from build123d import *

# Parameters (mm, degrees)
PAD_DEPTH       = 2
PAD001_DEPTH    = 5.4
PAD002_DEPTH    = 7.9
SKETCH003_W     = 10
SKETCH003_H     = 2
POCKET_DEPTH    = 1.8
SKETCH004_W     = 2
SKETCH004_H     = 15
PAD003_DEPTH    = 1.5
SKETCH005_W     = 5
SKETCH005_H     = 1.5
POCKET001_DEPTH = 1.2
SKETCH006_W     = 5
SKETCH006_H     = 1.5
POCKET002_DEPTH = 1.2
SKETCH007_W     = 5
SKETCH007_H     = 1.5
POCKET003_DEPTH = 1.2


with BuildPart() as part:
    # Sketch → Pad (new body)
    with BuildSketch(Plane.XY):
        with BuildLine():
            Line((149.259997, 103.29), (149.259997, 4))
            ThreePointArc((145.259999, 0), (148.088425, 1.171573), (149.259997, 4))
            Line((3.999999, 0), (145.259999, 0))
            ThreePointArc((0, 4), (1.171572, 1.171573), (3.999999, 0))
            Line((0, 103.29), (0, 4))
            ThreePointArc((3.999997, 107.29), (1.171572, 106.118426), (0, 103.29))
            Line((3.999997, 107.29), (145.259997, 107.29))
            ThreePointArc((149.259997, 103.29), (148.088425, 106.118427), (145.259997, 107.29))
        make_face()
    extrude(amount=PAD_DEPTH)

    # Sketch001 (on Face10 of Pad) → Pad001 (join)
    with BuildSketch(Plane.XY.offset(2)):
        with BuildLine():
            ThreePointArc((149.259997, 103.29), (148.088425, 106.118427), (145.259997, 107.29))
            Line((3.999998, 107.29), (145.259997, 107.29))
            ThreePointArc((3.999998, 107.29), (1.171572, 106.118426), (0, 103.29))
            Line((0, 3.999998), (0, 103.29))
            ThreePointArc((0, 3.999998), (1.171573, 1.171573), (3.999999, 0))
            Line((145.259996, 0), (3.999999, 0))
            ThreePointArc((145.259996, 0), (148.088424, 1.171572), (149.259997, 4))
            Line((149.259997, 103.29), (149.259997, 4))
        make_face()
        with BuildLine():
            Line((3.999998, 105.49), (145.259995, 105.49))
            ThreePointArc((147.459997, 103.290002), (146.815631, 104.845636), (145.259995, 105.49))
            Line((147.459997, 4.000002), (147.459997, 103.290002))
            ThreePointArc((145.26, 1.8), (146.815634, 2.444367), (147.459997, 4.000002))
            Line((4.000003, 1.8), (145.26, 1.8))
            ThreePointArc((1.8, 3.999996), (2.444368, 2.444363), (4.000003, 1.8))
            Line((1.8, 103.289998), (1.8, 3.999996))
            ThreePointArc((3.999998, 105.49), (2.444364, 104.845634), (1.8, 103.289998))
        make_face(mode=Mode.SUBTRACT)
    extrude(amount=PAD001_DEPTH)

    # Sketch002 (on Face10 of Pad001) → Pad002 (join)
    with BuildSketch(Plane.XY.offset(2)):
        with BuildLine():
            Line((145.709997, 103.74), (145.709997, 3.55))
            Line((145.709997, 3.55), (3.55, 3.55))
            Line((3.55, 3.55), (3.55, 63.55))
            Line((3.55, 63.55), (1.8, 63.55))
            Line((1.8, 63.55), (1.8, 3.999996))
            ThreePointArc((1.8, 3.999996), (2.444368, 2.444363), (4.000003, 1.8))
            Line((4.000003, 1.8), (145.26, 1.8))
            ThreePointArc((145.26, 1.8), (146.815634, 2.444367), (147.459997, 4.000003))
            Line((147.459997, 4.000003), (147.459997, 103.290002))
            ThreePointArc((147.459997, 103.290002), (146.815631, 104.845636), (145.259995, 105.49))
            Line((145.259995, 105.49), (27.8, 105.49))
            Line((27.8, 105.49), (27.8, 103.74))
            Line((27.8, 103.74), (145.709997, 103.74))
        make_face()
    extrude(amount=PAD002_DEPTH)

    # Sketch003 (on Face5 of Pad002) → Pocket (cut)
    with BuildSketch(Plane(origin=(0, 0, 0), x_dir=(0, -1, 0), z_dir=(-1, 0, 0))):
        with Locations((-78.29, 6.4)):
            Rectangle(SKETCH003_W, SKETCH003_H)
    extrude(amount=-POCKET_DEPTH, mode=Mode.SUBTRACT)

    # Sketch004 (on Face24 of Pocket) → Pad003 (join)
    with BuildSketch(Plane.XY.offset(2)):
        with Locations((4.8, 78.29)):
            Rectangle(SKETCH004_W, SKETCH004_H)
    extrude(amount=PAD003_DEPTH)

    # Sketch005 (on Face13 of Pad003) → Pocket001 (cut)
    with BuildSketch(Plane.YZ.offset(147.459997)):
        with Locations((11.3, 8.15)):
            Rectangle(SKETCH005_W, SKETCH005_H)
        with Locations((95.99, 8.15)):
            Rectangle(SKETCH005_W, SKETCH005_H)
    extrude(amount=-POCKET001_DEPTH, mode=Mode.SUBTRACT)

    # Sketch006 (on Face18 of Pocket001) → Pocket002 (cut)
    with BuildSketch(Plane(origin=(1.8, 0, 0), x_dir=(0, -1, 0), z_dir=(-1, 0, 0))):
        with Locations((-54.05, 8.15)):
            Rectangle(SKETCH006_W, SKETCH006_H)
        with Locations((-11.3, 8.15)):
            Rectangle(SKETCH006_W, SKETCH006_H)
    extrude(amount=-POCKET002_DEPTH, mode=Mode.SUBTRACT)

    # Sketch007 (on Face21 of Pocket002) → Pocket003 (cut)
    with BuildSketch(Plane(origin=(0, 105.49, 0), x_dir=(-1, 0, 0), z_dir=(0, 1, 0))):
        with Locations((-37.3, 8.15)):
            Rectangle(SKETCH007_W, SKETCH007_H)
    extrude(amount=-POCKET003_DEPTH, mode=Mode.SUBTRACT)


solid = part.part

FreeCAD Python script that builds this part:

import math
import FreeCAD as App
import Part
import Sketcher


def add_polygon(sketch, points):
    """Adds a closed chain of lines whose ends are joined by coincident constraints."""
    first, n = sketch.GeometryCount, len(points)
    for a, b in zip(points, points[1:] + points[:1]):
        sketch.addGeometry(Part.LineSegment(App.Vector(*a, 0), App.Vector(*b, 0)), False)
    for i in range(n):
        sketch.addConstraint(Sketcher.Constraint("Coincident", first + i, 2, first + (i + 1) % n, 1))

doc = App.newDocument("Part")
params = doc.addObject("Spreadsheet::Sheet", "Params")
for row, (alias, value) in enumerate([
    ("sketch1_radius", "3.999999 mm"),
    ("sketch1_width", "141.26 mm"),
    ("sketch1_height", "99.29 mm"),
    ("pad1_length", "2 mm"),
    ("sketch2_radius", "3.999999 mm"),
    ("sketch2_radius2", "2.2 mm"),
    ("sketch2_width", "141.259999 mm"),
    ("sketch2_height", "99.290002 mm"),
    ("pad2_length", "5.4 mm"),
    ("sketch3_radius", "2.200001 mm"),
    ("sketch3_height", "60 mm"),
    ("sketch3_width", "1.75 mm"),
    ("sketch3_height2", "100.19 mm"),
    ("sketch3_height3", "99.289999 mm"),
    ("pad3_length", "7.9 mm"),
    ("sketch4_width", "10 mm"),
    ("sketch4_height", "2 mm"),
    ("pocket1_length", "1.8 mm"),
    ("sketch5_width", "2 mm"),
    ("sketch5_height", "15 mm"),
    ("pad4_length", "1.5 mm"),
    ("sketch6_width", "5 mm"),
    ("sketch6_height", "1.5 mm"),
    ("pocket2_length", "1.2 mm"),
    ("sketch7_width", "5 mm"),
    ("sketch7_height", "1.5 mm"),
    ("pocket3_length", "1.2 mm"),
    ("sketch8_width", "5 mm"),
    ("sketch8_height", "1.5 mm"),
    ("pocket4_length", "1.2 mm"),
], start=1):
    params.set(f"A{row}", alias)
    params.set(f"B{row}", "=" + value)
    params.setAlias(f"B{row}", alias)

body = doc.addObject("PartDesign::Body", "Body")

# Sketch on XY plane
sketch1 = body.newObject("Sketcher::SketchObject", "Sketch")
sketch1.AttachmentSupport = (doc.getObject("XY_Plane"), [""])
sketch1.MapMode = "FlatFace"
sketch1.addGeometry(Part.LineSegment(App.Vector(149.3, 4, 0), App.Vector(149.3, 103.3, 0)), False)
sketch1.addGeometry(Part.ArcOfCircle(Part.Circle(App.Vector(145.3, 103.3, 0), App.Vector(0, 0, 1), 4), math.radians(0), math.radians(90)), False)
sketch1.addGeometry(Part.LineSegment(App.Vector(145.3, 107.3, 0), App.Vector(4, 107.3, 0)), False)
sketch1.addGeometry(Part.ArcOfCircle(Part.Circle(App.Vector(4, 103.3, 0), App.Vector(0, 0, 1), 4), math.radians(90), math.radians(180)), False)
sketch1.addGeometry(Part.LineSegment(App.Vector(0, 103.3, 0), App.Vector(0, 4, 0)), False)
sketch1.addGeometry(Part.ArcOfCircle(Part.Circle(App.Vector(4, 4, 0), App.Vector(0, 0, 1), 4), math.radians(180), math.radians(270)), False)
sketch1.addGeometry(Part.LineSegment(App.Vector(4, 0, 0), App.Vector(145.3, 0, 0)), False)
sketch1.addGeometry(Part.ArcOfCircle(Part.Circle(App.Vector(145.3, 4, 0), App.Vector(0, 0, 1), 4), math.radians(-90), math.radians(0)), False)
sketch1.addConstraint(Sketcher.Constraint("Tangent", 0, 2, 1, 1))
sketch1.addConstraint(Sketcher.Constraint("Tangent", 1, 2, 2, 1))
sketch1.addConstraint(Sketcher.Constraint("Tangent", 2, 2, 3, 1))
sketch1.addConstraint(Sketcher.Constraint("Tangent", 3, 2, 4, 1))
sketch1.addConstraint(Sketcher.Constraint("Tangent", 4, 2, 5, 1))
sketch1.addConstraint(Sketcher.Constraint("Tangent", 5, 2, 6, 1))
sketch1.addConstraint(Sketcher.Constraint("Tangent", 6, 2, 7, 1))
sketch1.addConstraint(Sketcher.Constraint("Tangent", 7, 2, 0, 1))
sketch1.addConstraint(Sketcher.Constraint("Vertical", 0))
sketch1.addConstraint(Sketcher.Constraint("Horizontal", 2))
sketch1.addConstraint(Sketcher.Constraint("Vertical", 4))
sketch1.addConstraint(Sketcher.Constraint("Horizontal", 6))
sketch1.addConstraint(Sketcher.Constraint("Equal", 1, 3))
sketch1.addConstraint(Sketcher.Constraint("Equal", 3, 5))
sketch1.addConstraint(Sketcher.Constraint("Equal", 5, 7))
sketch1.addConstraint(Sketcher.Constraint("PointOnObject", 3, 2, -2))
sketch1.addConstraint(Sketcher.Constraint("PointOnObject", 5, 2, -1))
sketch1.addConstraint(Sketcher.Constraint("Radius", 1, 3.999999))
sketch1.addConstraint(Sketcher.Constraint("DistanceX", 2, 2, 2, 1, 141.26))
sketch1.addConstraint(Sketcher.Constraint("DistanceY", 0, 1, 0, 2, 99.29))
sketch1.setExpression("Constraints[17]", "Params.sketch1_radius")
sketch1.setExpression("Constraints[18]", "Params.sketch1_width")
sketch1.setExpression("Constraints[19]", "Params.sketch1_height")
pad1 = body.newObject("PartDesign::Pad", "Pad")
pad1.Profile = sketch1
pad1.setExpression("Length", "Params.pad1_length")

# Sketch on XY plane
sketch2 = body.newObject("Sketcher::SketchObject", "Sketch001")
sketch2.AttachmentSupport = (doc.getObject("XY_Plane"), [""])
sketch2.MapMode = "FlatFace"
sketch2.AttachmentOffset = App.Placement(App.Vector(0, 0, 2), App.Rotation())
sketch2.addGeometry(Part.ArcOfCircle(Part.Circle(App.Vector(145.3, 103.3, 0), App.Vector(0, 0, 1), 4), math.radians(0), math.radians(90)), False)
sketch2.addGeometry(Part.LineSegment(App.Vector(145.3, 107.3, 0), App.Vector(4, 107.3, 0)), False)
sketch2.addGeometry(Part.ArcOfCircle(Part.Circle(App.Vector(4, 103.3, 0), App.Vector(0, 0, 1), 4), math.radians(90), math.radians(180)), False)
sketch2.addGeometry(Part.LineSegment(App.Vector(0, 103.3, 0), App.Vector(0, 4, 0)), False)
sketch2.addGeometry(Part.ArcOfCircle(Part.Circle(App.Vector(4, 4, 0), App.Vector(0, 0, 1), 4), math.radians(-180), math.radians(-90)), False)
sketch2.addGeometry(Part.LineSegment(App.Vector(4, 0, 0), App.Vector(145.3, 0, 0)), False)
sketch2.addGeometry(Part.ArcOfCircle(Part.Circle(App.Vector(145.3, 4, 0), App.Vector(0, 0, 1), 4), math.radians(-90), math.radians(0)), False)
sketch2.addGeometry(Part.LineSegment(App.Vector(149.3, 4, 0), App.Vector(149.3, 103.3, 0)), False)
sketch2.addGeometry(Part.ArcOfCircle(Part.Circle(App.Vector(4, 103.3, 0), App.Vector(0, 0, 1), 2.2), math.radians(90), math.radians(180)), False)
sketch2.addGeometry(Part.LineSegment(App.Vector(4, 105.5, 0), App.Vector(145.3, 105.5, 0)), False)
sketch2.addGeometry(Part.ArcOfCircle(Part.Circle(App.Vector(145.3, 103.3, 0), App.Vector(0, 0, 1), 2.2), math.radians(0), math.radians(90)), False)
sketch2.addGeometry(Part.LineSegment(App.Vector(147.5, 103.3, 0), App.Vector(147.5, 4, 0)), False)
sketch2.addGeometry(Part.ArcOfCircle(Part.Circle(App.Vector(145.3, 4, 0), App.Vector(0, 0, 1), 2.2), math.radians(-90), math.radians(0)), False)
sketch2.addGeometry(Part.LineSegment(App.Vector(145.3, 1.8, 0), App.Vector(4, 1.8, 0)), False)
sketch2.addGeometry(Part.ArcOfCircle(Part.Circle(App.Vector(4, 4, 0), App.Vector(0, 0, 1), 2.2), math.radians(-180), math.radians(-90)), False)
sketch2.addGeometry(Part.LineSegment(App.Vector(1.8, 4, 0), App.Vector(1.8, 103.3, 0)), False)
sketch2.addConstraint(Sketcher.Constraint("Tangent", 0, 2, 1, 1))
sketch2.addConstraint(Sketcher.Constraint("Tangent", 1, 2, 2, 1))
sketch2.addConstraint(Sketcher.Constraint("Tangent", 2, 2, 3, 1))
sketch2.addConstraint(Sketcher.Constraint("Tangent", 3, 2, 4, 1))
sketch2.addConstraint(Sketcher.Constraint("Tangent", 4, 2, 5, 1))
sketch2.addConstraint(Sketcher.Constraint("Tangent", 5, 2, 6, 1))
sketch2.addConstraint(Sketcher.Constraint("Tangent", 6, 2, 7, 1))
sketch2.addConstraint(Sketcher.Constraint("Tangent", 7, 2, 0, 1))
sketch2.addConstraint(Sketcher.Constraint("Tangent", 8, 1, 9, 1))
sketch2.addConstraint(Sketcher.Constraint("Tangent", 9, 2, 10, 2))
sketch2.addConstraint(Sketcher.Constraint("Tangent", 10, 1, 11, 1))
sketch2.addConstraint(Sketcher.Constraint("Tangent", 11, 2, 12, 2))
sketch2.addConstraint(Sketcher.Constraint("Tangent", 12, 1, 13, 1))
sketch2.addConstraint(Sketcher.Constraint("Tangent", 13, 2, 14, 2))
sketch2.addConstraint(Sketcher.Constraint("Coincident", 14, 1, 15, 1))
sketch2.addConstraint(Sketcher.Constraint("Tangent", 15, 2, 8, 2))
sketch2.addConstraint(Sketcher.Constraint("Horizontal", 1))
sketch2.addConstraint(Sketcher.Constraint("Vertical", 3))
sketch2.addConstraint(Sketcher.Constraint("Horizontal", 5))
sketch2.addConstraint(Sketcher.Constraint("Vertical", 7))
sketch2.addConstraint(Sketcher.Constraint("Horizontal", 9))
sketch2.addConstraint(Sketcher.Constraint("Vertical", 11))
sketch2.addConstraint(Sketcher.Constraint("Horizontal", 13))
sketch2.addConstraint(Sketcher.Constraint("Vertical", 15))
sketch2.addConstraint(Sketcher.Constraint("Coincident", 8, 3, 2, 3))
sketch2.addConstraint(Sketcher.Constraint("Coincident", 10, 3, 0, 3))
sketch2.addConstraint(Sketcher.Constraint("Coincident", 12, 3, 6, 3))
sketch2.addConstraint(Sketcher.Constraint("Equal", 0, 2))
sketch2.addConstraint(Sketcher.Constraint("Equal", 2, 4))
sketch2.addConstraint(Sketcher.Constraint("Equal", 4, 6))
sketch2.addConstraint(Sketcher.Constraint("Equal", 12, 14))
sketch2.addConstraint(Sketcher.Constraint("PointOnObject", 2, 2, -2))
sketch2.addConstraint(Sketcher.Constraint("PointOnObject", 4, 2, -1))
sketch2.addConstraint(Sketcher.Constraint("Horizontal", 3, 2, 14, 1))
sketch2.addConstraint(Sketcher.Constraint("Radius", 0, 3.999999))
sketch2.addConstraint(Sketcher.Constraint("Radius", 8, 2.2))
sketch2.addConstraint(Sketcher.Constraint("DistanceX", 1, 2, 1, 1, 141.259999))
sketch2.addConstraint(Sketcher.Constraint("DistanceY", 3, 2, 3, 1, 99.290002))
sketch2.setExpression("Constraints[34]", "Params.sketch2_radius")
sketch2.setExpression("Constraints[35]", "Params.sketch2_radius2")
sketch2.setExpression("Constraints[36]", "Params.sketch2_width")
sketch2.setExpression("Constraints[37]", "Params.sketch2_height")
pad2 = body.newObject("PartDesign::Pad", "Pad001")
pad2.Profile = sketch2
pad2.setExpression("Length", "Params.pad2_length")

# Sketch on XY plane
sketch3 = body.newObject("Sketcher::SketchObject", "Sketch002")
sketch3.AttachmentSupport = (doc.getObject("XY_Plane"), [""])
sketch3.MapMode = "FlatFace"
sketch3.AttachmentOffset = App.Placement(App.Vector(0, 0, 2), App.Rotation())
sketch3.addGeometry(Part.LineSegment(App.Vector(145.7, 103.7, 0), App.Vector(145.7, 3.5, 0)), False)
sketch3.addGeometry(Part.LineSegment(App.Vector(145.7, 3.5, 0), App.Vector(3.5, 3.5, 0)), False)
sketch3.addGeometry(Part.LineSegment(App.Vector(3.5, 3.5, 0), App.Vector(3.5, 63.5, 0)), False)
sketch3.addGeometry(Part.LineSegment(App.Vector(3.5, 63.5, 0), App.Vector(1.8, 63.5, 0)), False)
sketch3.addGeometry(Part.LineSegment(App.Vector(1.8, 63.5, 0), App.Vector(1.8, 4, 0)), False)
sketch3.addGeometry(Part.ArcOfCircle(Part.Circle(App.Vector(4, 4, 0), App.Vector(0, 0, 1), 2.2), math.radians(-180), math.radians(-90)), False)
sketch3.addGeometry(Part.LineSegment(App.Vector(4, 1.8, 0), App.Vector(145.3, 1.8, 0)), False)
sketch3.addGeometry(Part.ArcOfCircle(Part.Circle(App.Vector(145.3, 4, 0), App.Vector(0, 0, 1), 2.2), math.radians(-90), math.radians(0)), False)
sketch3.addGeometry(Part.LineSegment(App.Vector(147.5, 4, 0), App.Vector(147.5, 103.3, 0)), False)
sketch3.addGeometry(Part.ArcOfCircle(Part.Circle(App.Vector(145.3, 103.3, 0), App.Vector(0, 0, 1), 2.2), math.radians(0), math.radians(90)), False)
sketch3.addGeometry(Part.LineSegment(App.Vector(145.3, 105.5, 0), App.Vector(27.8, 105.5, 0)), False)
sketch3.addGeometry(Part.LineSegment(App.Vector(27.8, 105.5, 0), App.Vector(27.8, 103.7, 0)), False)
sketch3.addGeometry(Part.LineSegment(App.Vector(27.8, 103.7, 0), App.Vector(145.7, 103.7, 0)), False)
sketch3.addConstraint(Sketcher.Constraint("Coincident", 0, 2, 1, 1))
sketch3.addConstraint(Sketcher.Constraint("Coincident", 1, 2, 2, 1))
sketch3.addConstraint(Sketcher.Constraint("Coincident", 2, 2, 3, 1))
sketch3.addConstraint(Sketcher.Constraint("Coincident", 3, 2, 4, 1))
sketch3.addConstraint(Sketcher.Constraint("Coincident", 4, 2, 5, 1))
sketch3.addConstraint(Sketcher.Constraint("Tangent", 5, 2, 6, 1))
sketch3.addConstraint(Sketcher.Constraint("Tangent", 6, 2, 7, 1))
sketch3.addConstraint(Sketcher.Constraint("Tangent", 7, 2, 8, 1))
sketch3.addConstraint(Sketcher.Constraint("Tangent", 8, 2, 9, 1))
sketch3.addConstraint(Sketcher.Constraint("Tangent", 9, 2, 10, 1))
sketch3.addConstraint(Sketcher.Constraint("Coincident", 10, 2, 11, 1))
sketch3.addConstraint(Sketcher.Constraint("Coincident", 11, 2, 12, 1))
sketch3.addConstraint(Sketcher.Constraint("Coincident", 12, 2, 0, 1))
sketch3.addConstraint(Sketcher.Constraint("Vertical", 0))
sketch3.addConstraint(Sketcher.Constraint("Horizontal", 1))
sketch3.addConstraint(Sketcher.Constraint("Vertical", 2))
sketch3.addConstraint(Sketcher.Constraint("Horizontal", 3))
sketch3.addConstraint(Sketcher.Constraint("Vertical", 4))
sketch3.addConstraint(Sketcher.Constraint("Horizontal", 6))
sketch3.addConstraint(Sketcher.Constraint("Vertical", 8))
sketch3.addConstraint(Sketcher.Constraint("Horizontal", 10))
sketch3.addConstraint(Sketcher.Constraint("Vertical", 11))
sketch3.addConstraint(Sketcher.Constraint("Horizontal", 12))
sketch3.addConstraint(Sketcher.Constraint("Equal", 5, 7))
sketch3.addConstraint(Sketcher.Constraint("Equal", 7, 9))
sketch3.addConstraint(Sketcher.Constraint("Equal", 3, 11))
sketch3.addConstraint(Sketcher.Constraint("Radius", 5, 2.200001))
sketch3.addConstraint(Sketcher.Constraint("DistanceY", 2, 1, 2, 2, 60.0))
sketch3.addConstraint(Sketcher.Constraint("DistanceX", -1, 1, 5, 3, 4.000001))
sketch3.addConstraint(Sketcher.Constraint("DistanceY", -1, 1, 5, 3, 4.000001))
sketch3.addConstraint(Sketcher.Constraint("DistanceX", 3, 2, 10, 2, 26.0))
sketch3.addConstraint(Sketcher.Constraint("DistanceX", 3, 2, 3, 1, 1.75))
sketch3.addConstraint(Sketcher.Constraint("DistanceY", 0, 2, 0, 1, 100.19))
sketch3.addConstraint(Sketcher.Constraint("DistanceY", 8, 1, 8, 2, 99.289999))
sketch3.addConstraint(Sketcher.Constraint("DistanceX", -1, 1, 6, 2, 145.26))
sketch3.addConstraint(Sketcher.Constraint("DistanceX", 7, 3, 0, 2, 0.45))
sketch3.addConstraint(Sketcher.Constraint("DistanceY", 4, 2, 4, 1, 59.550004))
sketch3.setExpression("Constraints[26]", "Params.sketch3_radius")
sketch3.setExpression("Constraints[27]", "Params.sketch3_height")
sketch3.setExpression("Constraints[31]", "Params.sketch3_width")
sketch3.setExpression("Constraints[32]", "Params.sketch3_height2")
sketch3.setExpression("Constraints[33]", "Params.sketch3_height3")
pad3 = body.newObject("PartDesign::Pad", "Pad002")
pad3.Profile = sketch3
pad3.setExpression("Length", "Params.pad3_length")

# Sketch on YZ plane
sketch4 = body.newObject("Sketcher::SketchObject", "Sketch003")
sketch4.AttachmentSupport = (doc.getObject("YZ_Plane"), [""])
sketch4.MapMode = "FlatFace"
add_polygon(sketch4, [(83.3, 7.4), (83.3, 5.4), (73.3, 5.4), (73.3, 7.4)])  # lines 0-3
sketch4.addConstraint(Sketcher.Constraint("Vertical", 0))
sketch4.addConstraint(Sketcher.Constraint("Horizontal", 1))
sketch4.addConstraint(Sketcher.Constraint("Vertical", 2))
sketch4.addConstraint(Sketcher.Constraint("Horizontal", 3))
sketch4.addConstraint(Sketcher.Constraint("DistanceX", 1, 2, 1, 1, 10.0))
sketch4.addConstraint(Sketcher.Constraint("DistanceY", 0, 2, 0, 1, 2.0))
sketch4.addConstraint(Sketcher.Constraint("DistanceY", -1, 1, 0, 2, 5.4))
sketch4.addConstraint(Sketcher.Constraint("DistanceX", -1, 1, 0, 2, 83.29))
sketch4.setExpression("Constraints[8]", "Params.sketch4_width")
sketch4.setExpression("Constraints[9]", "Params.sketch4_height")
pocket1 = body.newObject("PartDesign::Pocket", "Pocket")
pocket1.Profile = sketch4
pocket1.setExpression("Length", "Params.pocket1_length")
pocket1.Reversed = True

# Sketch on XY plane
sketch5 = body.newObject("Sketcher::SketchObject", "Sketch004")
sketch5.AttachmentSupport = (doc.getObject("XY_Plane"), [""])
sketch5.MapMode = "FlatFace"
sketch5.AttachmentOffset = App.Placement(App.Vector(0, 0, 2), App.Rotation())
add_polygon(sketch5, [(3.8, 85.8), (3.8, 70.8), (5.8, 70.8), (5.8, 85.8)])  # lines 0-3
sketch5.addConstraint(Sketcher.Constraint("Vertical", 0))
sketch5.addConstraint(Sketcher.Constraint("Horizontal", 1))
sketch5.addConstraint(Sketcher.Constraint("Vertical", 2))
sketch5.addConstraint(Sketcher.Constraint("Horizontal", 3))
sketch5.addConstraint(Sketcher.Constraint("DistanceX", 1, 1, 1, 2, 2.0))
sketch5.addConstraint(Sketcher.Constraint("DistanceY", 0, 2, 0, 1, 15.0))
sketch5.addConstraint(Sketcher.Constraint("DistanceX", -1, 1, 0, 2, 3.8))
sketch5.addConstraint(Sketcher.Constraint("DistanceY", -1, 1, 0, 2, 70.79))
sketch5.setExpression("Constraints[8]", "Params.sketch5_width")
sketch5.setExpression("Constraints[9]", "Params.sketch5_height")
pad4 = body.newObject("PartDesign::Pad", "Pad003")
pad4.Profile = sketch5
pad4.setExpression("Length", "Params.pad4_length")

# Sketch on YZ plane
sketch6 = body.newObject("Sketcher::SketchObject", "Sketch005")
sketch6.AttachmentSupport = (doc.getObject("YZ_Plane"), [""])
sketch6.MapMode = "FlatFace"
sketch6.AttachmentOffset = App.Placement(App.Vector(0, 0, 147.459997), App.Rotation())
add_polygon(sketch6, [(8.8, 8.9), (8.8, 7.4), (13.8, 7.4), (13.8, 8.9)])  # lines 0-3
add_polygon(sketch6, [(93.5, 8.9), (93.5, 7.4), (98.5, 7.4), (98.5, 8.9)])  # lines 4-7
sketch6.addConstraint(Sketcher.Constraint("Vertical", 0))
sketch6.addConstraint(Sketcher.Constraint("Horizontal", 1))
sketch6.addConstraint(Sketcher.Constraint("Vertical", 2))
sketch6.addConstraint(Sketcher.Constraint("Horizontal", 3))
sketch6.addConstraint(Sketcher.Constraint("Vertical", 4))
sketch6.addConstraint(Sketcher.Constraint("Horizontal", 5))
sketch6.addConstraint(Sketcher.Constraint("Vertical", 6))
sketch6.addConstraint(Sketcher.Constraint("Horizontal", 7))
sketch6.addConstraint(Sketcher.Constraint("Horizontal", 1, 2, 4, 2))
sketch6.addConstraint(Sketcher.Constraint("Horizontal", 3, 2, 6, 2))
sketch6.addConstraint(Sketcher.Constraint("Equal", 3, 5))
sketch6.addConstraint(Sketcher.Constraint("DistanceX", 1, 1, 1, 2, 5.0))
sketch6.addConstraint(Sketcher.Constraint("DistanceY", 0, 2, 0, 1, 1.5))
sketch6.addConstraint(Sketcher.Constraint("DistanceX", -1, 1, 0, 2, 8.8))
sketch6.addConstraint(Sketcher.Constraint("DistanceY", -1, 1, 0, 2, 7.4))
sketch6.addConstraint(Sketcher.Constraint("DistanceX", -1, 1, 4, 2, 93.49))
sketch6.setExpression("Constraints[19]", "Params.sketch6_width")
sketch6.setExpression("Constraints[20]", "Params.sketch6_height")
pocket2 = body.newObject("PartDesign::Pocket", "Pocket001")
pocket2.Profile = sketch6
pocket2.setExpression("Length", "Params.pocket2_length")

# Sketch on YZ plane
sketch7 = body.newObject("Sketcher::SketchObject", "Sketch006")
sketch7.AttachmentSupport = (doc.getObject("YZ_Plane"), [""])
sketch7.MapMode = "FlatFace"
sketch7.AttachmentOffset = App.Placement(App.Vector(0, 0, 1.8), App.Rotation())
add_polygon(sketch7, [(56.5, 8.9), (56.5, 7.4), (51.5, 7.4), (51.5, 8.9)])  # lines 0-3
add_polygon(sketch7, [(13.8, 8.9), (13.8, 7.4), (8.8, 7.4), (8.8, 8.9)])  # lines 4-7
sketch7.addConstraint(Sketcher.Constraint("Vertical", 0))
sketch7.addConstraint(Sketcher.Constraint("Horizontal", 1))
sketch7.addConstraint(Sketcher.Constraint("Vertical", 2))
sketch7.addConstraint(Sketcher.Constraint("Horizontal", 3))
sketch7.addConstraint(Sketcher.Constraint("Vertical", 4))
sketch7.addConstraint(Sketcher.Constraint("Horizontal", 5))
sketch7.addConstraint(Sketcher.Constraint("Vertical", 6))
sketch7.addConstraint(Sketcher.Constraint("Horizontal", 7))
sketch7.addConstraint(Sketcher.Constraint("Horizontal", 1, 2, 4, 2))
sketch7.addConstraint(Sketcher.Constraint("Horizontal", 3, 2, 6, 2))
sketch7.addConstraint(Sketcher.Constraint("Equal", 3, 5))
sketch7.addConstraint(Sketcher.Constraint("DistanceX", 1, 2, 1, 1, 5.0))
sketch7.addConstraint(Sketcher.Constraint("DistanceY", 0, 2, 0, 1, 1.5))
sketch7.addConstraint(Sketcher.Constraint("DistanceY", -1, 1, 0, 2, 7.4))
sketch7.addConstraint(Sketcher.Constraint("DistanceX", -1, 1, 4, 2, 13.8))
sketch7.addConstraint(Sketcher.Constraint("DistanceX", -1, 1, 0, 2, 56.55))
sketch7.setExpression("Constraints[19]", "Params.sketch7_width")
sketch7.setExpression("Constraints[20]", "Params.sketch7_height")
pocket3 = body.newObject("PartDesign::Pocket", "Pocket002")
pocket3.Profile = sketch7
pocket3.setExpression("Length", "Params.pocket3_length")
pocket3.Reversed = True

# Sketch on XZ plane
sketch8 = body.newObject("Sketcher::SketchObject", "Sketch007")
sketch8.AttachmentSupport = (doc.getObject("XZ_Plane"), [""])
sketch8.MapMode = "FlatFace"
sketch8.AttachmentOffset = App.Placement(App.Vector(0, 0, -105.49), App.Rotation())
add_polygon(sketch8, [(39.8, 8.9), (39.8, 7.4), (34.8, 7.4), (34.8, 8.9)])  # lines 0-3
sketch8.addConstraint(Sketcher.Constraint("Vertical", 0))
sketch8.addConstraint(Sketcher.Constraint("Horizontal", 1))
sketch8.addConstraint(Sketcher.Constraint("Vertical", 2))
sketch8.addConstraint(Sketcher.Constraint("Horizontal", 3))
sketch8.addConstraint(Sketcher.Constraint("DistanceX", 1, 2, 1, 1, 5.0))
sketch8.addConstraint(Sketcher.Constraint("DistanceY", 0, 2, 0, 1, 1.5))
sketch8.addConstraint(Sketcher.Constraint("DistanceX", -1, 1, 0, 2, 39.8))
sketch8.addConstraint(Sketcher.Constraint("DistanceY", -1, 1, 0, 2, 7.4))
sketch8.setExpression("Constraints[8]", "Params.sketch8_width")
sketch8.setExpression("Constraints[9]", "Params.sketch8_height")
pocket4 = body.newObject("PartDesign::Pocket", "Pocket003")
pocket4.Profile = sketch8
pocket4.setExpression("Length", "Params.pocket4_length")
pocket4.Reversed = True

doc.recompute()
